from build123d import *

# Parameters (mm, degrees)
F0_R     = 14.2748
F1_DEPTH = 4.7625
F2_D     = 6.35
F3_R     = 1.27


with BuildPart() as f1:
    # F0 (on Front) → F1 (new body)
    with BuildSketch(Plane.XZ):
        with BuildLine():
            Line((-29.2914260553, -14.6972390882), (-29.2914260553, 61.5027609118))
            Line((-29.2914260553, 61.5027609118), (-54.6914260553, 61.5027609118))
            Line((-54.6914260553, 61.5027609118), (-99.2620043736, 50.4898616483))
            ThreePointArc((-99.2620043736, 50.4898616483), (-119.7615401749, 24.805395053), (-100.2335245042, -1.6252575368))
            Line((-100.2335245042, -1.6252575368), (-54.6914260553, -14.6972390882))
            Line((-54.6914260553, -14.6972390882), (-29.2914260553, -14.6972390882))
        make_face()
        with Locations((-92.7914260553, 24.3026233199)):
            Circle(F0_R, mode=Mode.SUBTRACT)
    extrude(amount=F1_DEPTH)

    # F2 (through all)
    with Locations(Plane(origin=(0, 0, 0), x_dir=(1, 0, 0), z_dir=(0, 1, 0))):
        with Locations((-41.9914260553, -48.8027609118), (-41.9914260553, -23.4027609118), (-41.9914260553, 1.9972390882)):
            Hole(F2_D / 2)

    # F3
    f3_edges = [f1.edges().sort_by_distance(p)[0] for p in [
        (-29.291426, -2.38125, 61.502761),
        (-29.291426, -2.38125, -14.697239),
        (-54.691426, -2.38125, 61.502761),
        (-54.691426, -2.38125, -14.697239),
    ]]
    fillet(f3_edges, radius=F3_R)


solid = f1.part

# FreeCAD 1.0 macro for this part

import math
import FreeCAD as App
import Part
import Sketcher
from FreeCAD import Vector
Q = App.Units.Quantity


def edges_at(feature, points):
    """Names of the edges that pass closest to the given points."""
    edges = feature.Shape.Edges
    near = lambda p: min(range(len(edges)), key=lambda i: edges[i].distToShape(Part.Vertex(*p))[0])
    return sorted({f"Edge{near(p) + 1}" for p in points})

doc = App.newDocument("Part")
body = doc.addObject("PartDesign::Body", "Body")

# Sketch on XZ plane
sketch1 = doc.addObject("Sketcher::SketchObject", "Sketch")
body.addObject(sketch1)
sketch1.AttachmentSupport = (doc.XZ_Plane, [""])
sketch1.MapMode = "FlatFace"
sketch1.addGeometry([
    Part.LineSegment(Vector(-29.291426, -14.697239, 0), Vector(-29.291426, 61.502761, 0)),  # 0
    Part.LineSegment(Vector(-29.291426, 61.502761, 0), Vector(-54.691426, 61.502761, 0)),  # 1
    Part.LineSegment(Vector(-54.691426, 61.502761, 0), Vector(-99.262004, 50.489862, 0)),  # 2
    Part.ArcOfCircle(Part.Circle(Vector(-92.791426, 24.302623, 0), Vector(0, 0, 1), 26.9748), math.radians(103.879159), math.radians(253.984895)),  # 3
    Part.LineSegment(Vector(-100.233525, -1.625258, 0), Vector(-54.691426, -14.697239, 0)),  # 4
    Part.LineSegment(Vector(-54.691426, -14.697239, 0), Vector(-29.291426, -14.697239, 0)),  # 5
    Part.Circle(Vector(-92.791426, 24.302623, 0), Vector(0, 0, 1), 14.2748),  # 6
], False)
sketch1.addConstraint([
    Sketcher.Constraint("Coincident", 0, 2, 1, 1),
    Sketcher.Constraint("Coincident", 1, 2, 2, 1),
    Sketcher.Constraint("Tangent", 2, 2, 3, 1),
    Sketcher.Constraint("Tangent", 3, 2, 4, 1),
    Sketcher.Constraint("Coincident", 4, 2, 5, 1),
    Sketcher.Constraint("Coincident", 5, 2, 0, 1),
    Sketcher.Constraint("Vertical", 0),
    Sketcher.Constraint("Horizontal", 1),
    Sketcher.Constraint("Horizontal", 5),
    Sketcher.Constraint("Coincident", 6, 3, 3, 3),
    Sketcher.Constraint("Vertical", 1, 2, 4, 2),
    Sketcher.Constraint("DistanceX", 1, 2, 1, 1, Q("1 in")),
    Sketcher.Constraint("DistanceY", 0, 1, 0, 2, Q("3 in")),
    Sketcher.Constraint("Diameter", 6, Q("1.124 in")),
    Sketcher.Constraint("Radius", 3, Q("1.062 in")),
    Sketcher.Constraint("DistanceX", 3, 3, 0, 2, Q("2.5 in")),
    Sketcher.Constraint("DistanceY", 2, 2, 1, 2, Q("11.012899 mm")),
    Sketcher.Constraint("DistanceY", -1, 1, 0, 2, Q("61.502761 mm")),
    Sketcher.Constraint("DistanceX", 3, 3, -1, 1, Q("92.791426 mm")),
])
pad1 = doc.addObject("PartDesign::Pad", "Pad")
body.addObject(pad1)
pad1.Profile = sketch1
pad1.Length = Q("0.1875 in")

# Sketch on XZ plane
sketch2 = doc.addObject("Sketcher::SketchObject", "Sketch001")
body.addObject(sketch2)
sketch2.AttachmentSupport = (doc.XZ_Plane, [""])
sketch2.MapMode = "FlatFace"
sketch2.addGeometry([
    Part.Circle(Vector(-41.991426, 48.802761, 0), Vector(0, 0, 1), 3.175),
    Part.Circle(Vector(-41.991426, 23.402761, 0), Vector(0, 0, 1), 3.175),
    Part.Circle(Vector(-41.991426, -1.997239, 0), Vector(0, 0, 1), 3.175),
], False)
sketch2.addConstraint([
    Sketcher.Constraint("Equal", 0, 1),
    Sketcher.Constraint("Equal", 1, 2),
    Sketcher.Constraint("Vertical", 0, 3, 1, 3),
    Sketcher.Constraint("Vertical", 1, 3, 2, 3),
    Sketcher.Constraint("Diameter", 0, Q("0.25 in")),
    Sketcher.Constraint("DistanceY", 1, 3, 0, 3, Q("1 in")),
    Sketcher.Constraint("DistanceY", 2, 3, 1, 3, Q("1 in")),
    Sketcher.Constraint("DistanceY", -1, 1, 0, 3, Q("48.802761 mm")),
    Sketcher.Constraint("DistanceX", 0, 3, -1, 1, Q("41.991426 mm")),
])
doc.recompute()
hole = doc.addObject("PartDesign::Hole", "Hole")
body.addObject(hole)
hole.Profile = sketch2
hole.ThreadType = "None"
hole.Diameter = Q("0.25 in")
hole.DepthType = "ThroughAll"
hole.Reversed = True
doc.recompute()

fillet = doc.addObject("PartDesign::Fillet", "Fillet")
body.addObject(fillet)
fillet.Base = (hole, edges_at(hole, [
    (-29.291, -2.381, 61.503),
    (-29.291, -2.381, -14.697),
    (-54.691, -2.381, 61.503),
    (-54.691, -2.381, -14.697),
]))
fillet.Radius = Q("0.05 in")

doc.recompute()
